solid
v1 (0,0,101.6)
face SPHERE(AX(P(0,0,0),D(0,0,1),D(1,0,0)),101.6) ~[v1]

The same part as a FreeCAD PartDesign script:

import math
import FreeCAD as App
import Part
import Sketcher
Q = App.Units.Quantity

doc = App.newDocument("Part")
body = doc.addObject("PartDesign::Body", "Body")

sketch1 = body.newObject("Sketcher::SketchObject", "Sketch")
sketch1.AttachmentSupport = (doc.getObject("XZ_Plane"), [""])
sketch1.MapMode = "FlatFace"
sketch1.addGeometry([
    Part.ArcOfCircle(Part.Circle(App.Vector(0, 0, 0), App.Vector(0, 0, 1), 102), math.radians(-90), math.radians(90)),
    Part.LineSegment(App.Vector(0, 102, 0), App.Vector(0, -102, 0)),
], False)
sketch1.addConstraint([
    Sketcher.Constraint("Coincident", 0, 1, 1, 2),
    Sketcher.Constraint("Coincident", 1, 1, 0, 2),
    Sketcher.Constraint("Vertical", 1),
    Sketcher.Constraint("Coincident", 0, 3, -1, 1),
    Sketcher.Constraint("PointOnObject", 0, 1, -2),
    Sketcher.Constraint("Radius", 0, Q("4 in")),
])
revolution = body.newObject("PartDesign::Revolution", "Revolution")
revolution.Profile = sketch1
revolution.ReferenceAxis = (sketch1, ["V_Axis"])
revolution.Angle = 360

doc.recompute()
